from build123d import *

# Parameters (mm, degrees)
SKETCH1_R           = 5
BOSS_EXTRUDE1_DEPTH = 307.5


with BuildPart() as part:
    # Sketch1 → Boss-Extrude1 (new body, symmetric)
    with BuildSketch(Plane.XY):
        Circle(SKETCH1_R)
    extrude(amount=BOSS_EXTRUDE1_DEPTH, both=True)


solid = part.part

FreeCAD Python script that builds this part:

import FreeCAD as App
import Part
import Sketcher

V = App.Vector
Q = App.Units.Quantity

doc = App.newDocument("Part")
params = doc.addObject("Spreadsheet::Sheet", "Params")
for row, (alias, value) in enumerate([
    ("sketch1_diameter", "10 mm"),
    ("pad1_length", "615 mm"),
], start=1):
    params.set(f"A{row}", alias)
    params.set(f"B{row}", "=" + value)
    params.setAlias(f"B{row}", alias)

body = doc.addObject("PartDesign::Body", "Body")

# Sketch on XY plane
sketch1 = body.newObject("Sketcher::SketchObject", "Sketch")
sketch1.AttachmentSupport = (doc.getObject("XY_Plane"), [""])
sketch1.MapMode = "FlatFace"
sketch1.addGeometry(Part.Circle(V(0, 0, 0), V(0, 0, 1), 5), False)
sketch1.addConstraint([
    Sketcher.Constraint("Coincident", 0, 3, -1, 1),
    Sketcher.Constraint("Diameter", 0, Q("10 mm")),
])
sketch1.setExpression("Constraints[1]", "Params.sketch1_diameter")
pad1 = body.newObject("PartDesign::Pad", "Pad")
pad1.Profile = sketch1
pad1.setExpression("Length", "Params.pad1_length")
pad1.Midplane = True

doc.recompute()
